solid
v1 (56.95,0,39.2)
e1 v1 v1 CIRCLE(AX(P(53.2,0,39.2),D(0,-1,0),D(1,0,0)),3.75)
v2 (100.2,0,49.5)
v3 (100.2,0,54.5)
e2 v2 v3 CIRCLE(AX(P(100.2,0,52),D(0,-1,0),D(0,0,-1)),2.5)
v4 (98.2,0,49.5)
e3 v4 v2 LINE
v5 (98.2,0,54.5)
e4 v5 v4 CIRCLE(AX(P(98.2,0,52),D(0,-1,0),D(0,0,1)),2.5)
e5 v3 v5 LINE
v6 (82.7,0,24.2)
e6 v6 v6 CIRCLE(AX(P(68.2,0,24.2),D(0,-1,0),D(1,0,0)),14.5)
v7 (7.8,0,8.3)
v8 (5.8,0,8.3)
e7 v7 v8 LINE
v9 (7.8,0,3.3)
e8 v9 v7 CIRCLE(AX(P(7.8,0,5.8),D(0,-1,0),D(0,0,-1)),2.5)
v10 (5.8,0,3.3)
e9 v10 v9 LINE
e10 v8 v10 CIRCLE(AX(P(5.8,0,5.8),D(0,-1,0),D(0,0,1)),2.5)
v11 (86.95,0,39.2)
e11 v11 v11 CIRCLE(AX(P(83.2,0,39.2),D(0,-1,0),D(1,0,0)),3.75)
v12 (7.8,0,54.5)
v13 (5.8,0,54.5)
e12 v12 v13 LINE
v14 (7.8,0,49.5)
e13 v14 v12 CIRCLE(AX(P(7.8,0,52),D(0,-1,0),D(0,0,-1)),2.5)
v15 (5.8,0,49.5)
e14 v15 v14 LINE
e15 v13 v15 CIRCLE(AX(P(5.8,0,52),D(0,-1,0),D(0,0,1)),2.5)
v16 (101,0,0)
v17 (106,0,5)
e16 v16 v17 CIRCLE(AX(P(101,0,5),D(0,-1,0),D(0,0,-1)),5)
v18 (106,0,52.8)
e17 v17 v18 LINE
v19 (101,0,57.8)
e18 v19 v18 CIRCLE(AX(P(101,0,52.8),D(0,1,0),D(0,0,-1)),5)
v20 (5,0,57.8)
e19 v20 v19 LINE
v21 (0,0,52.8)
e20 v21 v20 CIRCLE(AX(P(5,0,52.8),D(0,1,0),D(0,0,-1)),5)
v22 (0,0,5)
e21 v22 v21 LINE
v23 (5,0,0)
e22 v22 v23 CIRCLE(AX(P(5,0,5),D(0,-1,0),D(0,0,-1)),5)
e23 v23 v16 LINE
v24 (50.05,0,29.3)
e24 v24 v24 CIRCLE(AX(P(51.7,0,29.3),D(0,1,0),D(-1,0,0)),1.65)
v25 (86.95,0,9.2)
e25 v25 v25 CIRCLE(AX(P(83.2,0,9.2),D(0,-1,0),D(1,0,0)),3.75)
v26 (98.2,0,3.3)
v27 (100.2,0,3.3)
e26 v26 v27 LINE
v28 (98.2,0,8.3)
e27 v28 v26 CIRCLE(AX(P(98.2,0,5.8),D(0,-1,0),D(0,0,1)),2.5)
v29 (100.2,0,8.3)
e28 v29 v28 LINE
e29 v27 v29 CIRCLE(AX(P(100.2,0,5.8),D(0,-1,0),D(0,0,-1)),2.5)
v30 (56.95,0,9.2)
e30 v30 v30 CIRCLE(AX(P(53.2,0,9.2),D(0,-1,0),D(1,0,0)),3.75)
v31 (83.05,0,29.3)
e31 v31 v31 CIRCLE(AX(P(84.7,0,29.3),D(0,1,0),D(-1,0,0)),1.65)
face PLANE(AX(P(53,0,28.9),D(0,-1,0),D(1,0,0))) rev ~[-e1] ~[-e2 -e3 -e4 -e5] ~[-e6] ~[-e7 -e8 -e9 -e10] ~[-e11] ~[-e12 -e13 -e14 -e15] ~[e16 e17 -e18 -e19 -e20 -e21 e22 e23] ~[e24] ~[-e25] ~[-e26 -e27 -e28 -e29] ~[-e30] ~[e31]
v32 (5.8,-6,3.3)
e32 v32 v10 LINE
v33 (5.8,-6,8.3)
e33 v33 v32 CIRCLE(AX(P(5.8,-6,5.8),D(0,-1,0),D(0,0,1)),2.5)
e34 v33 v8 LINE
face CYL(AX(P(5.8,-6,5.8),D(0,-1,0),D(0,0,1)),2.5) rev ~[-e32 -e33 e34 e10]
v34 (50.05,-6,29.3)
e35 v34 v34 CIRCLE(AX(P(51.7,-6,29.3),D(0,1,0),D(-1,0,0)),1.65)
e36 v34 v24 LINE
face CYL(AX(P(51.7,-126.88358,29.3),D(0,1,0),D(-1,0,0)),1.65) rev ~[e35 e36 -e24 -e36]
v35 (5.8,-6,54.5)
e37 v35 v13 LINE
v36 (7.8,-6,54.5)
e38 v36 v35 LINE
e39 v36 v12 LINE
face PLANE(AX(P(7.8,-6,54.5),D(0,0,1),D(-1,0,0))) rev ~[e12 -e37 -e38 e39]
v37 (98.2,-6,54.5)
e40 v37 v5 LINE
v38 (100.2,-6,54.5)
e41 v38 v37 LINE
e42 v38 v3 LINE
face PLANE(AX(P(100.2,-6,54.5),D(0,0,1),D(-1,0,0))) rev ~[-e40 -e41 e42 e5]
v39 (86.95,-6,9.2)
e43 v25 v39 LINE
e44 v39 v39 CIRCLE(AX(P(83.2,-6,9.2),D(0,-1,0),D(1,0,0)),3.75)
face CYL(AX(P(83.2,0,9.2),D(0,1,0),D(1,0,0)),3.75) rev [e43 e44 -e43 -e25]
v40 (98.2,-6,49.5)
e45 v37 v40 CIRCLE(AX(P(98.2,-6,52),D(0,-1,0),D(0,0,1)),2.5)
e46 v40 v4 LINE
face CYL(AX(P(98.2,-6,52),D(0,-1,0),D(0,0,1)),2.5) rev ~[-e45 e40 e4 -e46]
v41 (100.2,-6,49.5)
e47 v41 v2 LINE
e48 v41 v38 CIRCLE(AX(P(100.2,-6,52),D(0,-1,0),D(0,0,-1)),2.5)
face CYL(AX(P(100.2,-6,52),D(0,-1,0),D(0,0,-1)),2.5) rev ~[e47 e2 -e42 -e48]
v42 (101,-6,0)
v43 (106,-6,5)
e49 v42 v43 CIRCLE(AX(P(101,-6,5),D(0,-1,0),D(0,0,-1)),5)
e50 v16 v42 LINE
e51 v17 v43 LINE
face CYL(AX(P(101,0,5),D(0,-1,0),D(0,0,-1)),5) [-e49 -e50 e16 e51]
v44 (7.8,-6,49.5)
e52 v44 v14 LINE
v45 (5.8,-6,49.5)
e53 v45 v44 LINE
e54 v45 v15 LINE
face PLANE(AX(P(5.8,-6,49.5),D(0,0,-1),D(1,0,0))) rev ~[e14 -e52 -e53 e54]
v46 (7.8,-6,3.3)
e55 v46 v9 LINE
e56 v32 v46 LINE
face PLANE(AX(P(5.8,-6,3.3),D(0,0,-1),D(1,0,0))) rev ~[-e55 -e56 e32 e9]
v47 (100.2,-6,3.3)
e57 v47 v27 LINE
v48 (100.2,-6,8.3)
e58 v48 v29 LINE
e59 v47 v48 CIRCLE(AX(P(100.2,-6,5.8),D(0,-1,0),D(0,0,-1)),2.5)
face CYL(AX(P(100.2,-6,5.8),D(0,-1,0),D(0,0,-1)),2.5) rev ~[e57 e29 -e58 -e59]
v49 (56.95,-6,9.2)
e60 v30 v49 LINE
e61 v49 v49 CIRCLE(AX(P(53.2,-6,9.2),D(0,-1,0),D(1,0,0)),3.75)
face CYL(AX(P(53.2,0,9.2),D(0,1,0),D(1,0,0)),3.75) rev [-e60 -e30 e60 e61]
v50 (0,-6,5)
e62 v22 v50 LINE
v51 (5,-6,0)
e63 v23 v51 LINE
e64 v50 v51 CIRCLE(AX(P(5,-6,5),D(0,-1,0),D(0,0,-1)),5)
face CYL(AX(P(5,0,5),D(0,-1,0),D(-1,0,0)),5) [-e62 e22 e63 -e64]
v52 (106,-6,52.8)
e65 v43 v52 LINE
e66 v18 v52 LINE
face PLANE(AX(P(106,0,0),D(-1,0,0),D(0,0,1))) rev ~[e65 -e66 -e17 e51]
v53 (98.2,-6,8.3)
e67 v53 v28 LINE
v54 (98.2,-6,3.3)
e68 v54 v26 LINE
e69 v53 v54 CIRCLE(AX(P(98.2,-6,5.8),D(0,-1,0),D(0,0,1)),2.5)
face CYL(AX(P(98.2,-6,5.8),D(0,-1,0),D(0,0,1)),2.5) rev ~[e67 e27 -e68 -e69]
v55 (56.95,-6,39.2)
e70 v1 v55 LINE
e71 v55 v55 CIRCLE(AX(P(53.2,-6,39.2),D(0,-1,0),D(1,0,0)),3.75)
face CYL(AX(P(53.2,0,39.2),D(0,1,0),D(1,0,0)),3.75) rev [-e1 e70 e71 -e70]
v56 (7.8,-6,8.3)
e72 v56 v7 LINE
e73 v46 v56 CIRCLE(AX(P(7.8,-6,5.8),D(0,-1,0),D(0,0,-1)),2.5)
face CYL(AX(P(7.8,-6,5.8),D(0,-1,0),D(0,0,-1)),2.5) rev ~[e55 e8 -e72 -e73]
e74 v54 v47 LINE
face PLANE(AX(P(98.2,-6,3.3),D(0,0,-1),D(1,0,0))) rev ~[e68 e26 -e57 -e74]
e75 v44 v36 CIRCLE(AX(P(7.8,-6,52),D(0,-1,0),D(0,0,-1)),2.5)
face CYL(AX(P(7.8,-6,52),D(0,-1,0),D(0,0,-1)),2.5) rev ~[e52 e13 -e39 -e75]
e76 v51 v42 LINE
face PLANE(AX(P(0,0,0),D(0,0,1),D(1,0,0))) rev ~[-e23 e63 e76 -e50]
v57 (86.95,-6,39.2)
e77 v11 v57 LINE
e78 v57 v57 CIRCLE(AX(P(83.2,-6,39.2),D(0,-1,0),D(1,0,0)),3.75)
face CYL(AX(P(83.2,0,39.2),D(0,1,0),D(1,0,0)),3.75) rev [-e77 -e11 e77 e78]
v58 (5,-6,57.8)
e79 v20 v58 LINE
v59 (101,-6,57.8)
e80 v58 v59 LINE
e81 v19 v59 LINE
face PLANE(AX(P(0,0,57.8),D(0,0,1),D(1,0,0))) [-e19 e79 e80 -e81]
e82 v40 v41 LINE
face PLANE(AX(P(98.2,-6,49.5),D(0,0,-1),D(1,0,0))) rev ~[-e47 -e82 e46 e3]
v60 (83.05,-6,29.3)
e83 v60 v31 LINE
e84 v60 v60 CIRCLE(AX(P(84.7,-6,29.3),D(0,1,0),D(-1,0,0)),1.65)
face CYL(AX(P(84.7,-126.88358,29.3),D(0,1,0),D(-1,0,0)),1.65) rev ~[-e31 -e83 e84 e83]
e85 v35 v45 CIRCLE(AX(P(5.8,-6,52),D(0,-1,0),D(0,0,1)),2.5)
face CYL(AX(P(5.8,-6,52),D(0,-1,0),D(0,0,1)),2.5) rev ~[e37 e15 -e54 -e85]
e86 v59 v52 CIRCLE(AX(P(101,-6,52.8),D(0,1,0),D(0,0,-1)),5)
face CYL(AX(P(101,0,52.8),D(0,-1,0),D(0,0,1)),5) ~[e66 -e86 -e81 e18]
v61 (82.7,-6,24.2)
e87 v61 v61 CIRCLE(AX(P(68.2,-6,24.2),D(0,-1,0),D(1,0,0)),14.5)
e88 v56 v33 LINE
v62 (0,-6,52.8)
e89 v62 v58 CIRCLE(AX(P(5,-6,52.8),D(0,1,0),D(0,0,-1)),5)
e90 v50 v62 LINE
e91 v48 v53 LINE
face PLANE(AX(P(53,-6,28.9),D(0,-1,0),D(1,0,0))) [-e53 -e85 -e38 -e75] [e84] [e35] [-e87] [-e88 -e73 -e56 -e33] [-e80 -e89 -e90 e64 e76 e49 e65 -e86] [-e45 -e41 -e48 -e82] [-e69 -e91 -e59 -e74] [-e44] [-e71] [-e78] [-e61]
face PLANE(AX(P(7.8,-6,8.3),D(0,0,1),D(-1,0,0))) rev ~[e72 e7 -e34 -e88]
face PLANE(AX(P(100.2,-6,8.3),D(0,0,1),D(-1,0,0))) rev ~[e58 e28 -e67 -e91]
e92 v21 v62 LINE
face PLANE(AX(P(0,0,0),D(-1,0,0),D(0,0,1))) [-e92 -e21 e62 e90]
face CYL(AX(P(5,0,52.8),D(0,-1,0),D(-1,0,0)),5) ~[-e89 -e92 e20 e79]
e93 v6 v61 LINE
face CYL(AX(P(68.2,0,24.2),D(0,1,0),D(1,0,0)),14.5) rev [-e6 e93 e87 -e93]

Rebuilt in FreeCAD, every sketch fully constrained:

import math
import FreeCAD as App
import Part
import Sketcher

V = App.Vector
Q = App.Units.Quantity


def edges_at(feature, points):
    """Names of the edges that pass closest to the given points."""
    edges = feature.Shape.Edges
    near = lambda p: min(range(len(edges)), key=lambda i: edges[i].distToShape(Part.Vertex(*p))[0])
    return sorted({f"Edge{near(p) + 1}" for p in points})

doc = App.newDocument("Part")
params = doc.addObject("Spreadsheet::Sheet", "Params")
for row, (alias, value) in enumerate([
    ("sketch1_diameter", "29 mm"),
    ("sketch1_diameter2", "7.5 mm"),
    ("sketch1_width", "106 mm"),
    ("sketch1_height", "57.8 mm"),
    ("pad1_length", "6 mm"),
    ("sketch2_radius", "2.5 mm"),
    ("sketch2_width", "2 mm"),
    ("sketch3_diameter", "3.3 mm"),
    ("hole_diameter", "3.3 mm"),
    ("fillet_radius", "5 mm"),
], start=1):
    params.set(f"A{row}", alias)
    params.set(f"B{row}", "=" + value)
    params.setAlias(f"B{row}", alias)

body = doc.addObject("PartDesign::Body", "Body")

# Sketch on XZ plane
sketch1 = body.newObject("Sketcher::SketchObject", "Sketch")
sketch1.AttachmentSupport = (doc.getObject("XZ_Plane"), [""])
sketch1.MapMode = "FlatFace"
sketch1.addGeometry([
    Part.LineSegment(V(0, 57.8, 0), V(0, 0, 0)),  # 0
    Part.LineSegment(V(0, 0, 0), V(106, 0, 0)),  # 1
    Part.LineSegment(V(106, 0, 0), V(106, 57.8, 0)),  # 2
    Part.LineSegment(V(106, 57.8, 0), V(0, 57.8, 0)),  # 3
    Part.Circle(V(53.2, 9.2, 0), V(0, 0, 1), 3.75),  # 4
    Part.Circle(V(83.2, 9.2, 0), V(0, 0, 1), 3.75),  # 5
    Part.Circle(V(53.2, 39.2, 0), V(0, 0, 1), 3.75),  # 6
    Part.Circle(V(68.2, 24.2, 0), V(0, 0, 1), 14.5),  # 7
    Part.Circle(V(83.2, 39.2, 0), V(0, 0, 1), 3.75),  # 8
], False)
sketch1.addConstraint([
    Sketcher.Constraint("Coincident", 0, 2, 1, 1),
    Sketcher.Constraint("Coincident", 1, 2, 2, 1),
    Sketcher.Constraint("Coincident", 2, 2, 3, 1),
    Sketcher.Constraint("Coincident", 3, 2, 0, 1),
    Sketcher.Constraint("Vertical", 0),
    Sketcher.Constraint("Horizontal", 1),
    Sketcher.Constraint("Vertical", 2),
    Sketcher.Constraint("Horizontal", 3),
    Sketcher.Constraint("Coincident", 0, 2, -1, 1),
    Sketcher.Constraint("Equal", 4, 5),
    Sketcher.Constraint("Equal", 5, 6),
    Sketcher.Constraint("Equal", 6, 8),
    Sketcher.Constraint("Horizontal", 4, 3, 5, 3),
    Sketcher.Constraint("Horizontal", 6, 3, 8, 3),
    Sketcher.Constraint("Vertical", 4, 3, 6, 3),
    Sketcher.Constraint("Vertical", 5, 3, 8, 3),
    Sketcher.Constraint("Diameter", 7, Q("29 mm")),
    Sketcher.Constraint("Diameter", 4, Q("7.5 mm")),
    Sketcher.Constraint("DistanceX", 1, 1, 1, 2, Q("106 mm")),
    Sketcher.Constraint("DistanceY", 0, 2, 0, 1, Q("57.8 mm")),
    Sketcher.Constraint("DistanceX", 4, 3, 5, 3, Q("30 mm")),
    Sketcher.Constraint("DistanceY", 4, 3, 6, 3, Q("30 mm")),
    Sketcher.Constraint("DistanceX", 4, 3, 7, 3, Q("15 mm")),
    Sketcher.Constraint("DistanceY", 4, 3, 7, 3, Q("15 mm")),
    Sketcher.Constraint("DistanceX", -1, 1, 4, 3, Q("53.2 mm")),
    Sketcher.Constraint("DistanceY", -1, 1, 4, 3, Q("9.2 mm")),
])
sketch1.setExpression("Constraints[16]", "Params.sketch1_diameter")
sketch1.setExpression("Constraints[17]", "Params.sketch1_diameter2")
sketch1.setExpression("Constraints[18]", "Params.sketch1_width")
sketch1.setExpression("Constraints[19]", "Params.sketch1_height")
pad1 = body.newObject("PartDesign::Pad", "Pad")
pad1.Profile = sketch1
pad1.setExpression("Length", "Params.pad1_length")

# Sketch on XZ plane
sketch2 = body.newObject("Sketcher::SketchObject", "Sketch001")
sketch2.AttachmentSupport = (doc.getObject("XZ_Plane"), [""])
sketch2.MapMode = "FlatFace"
sketch2.AttachmentOffset = App.Placement(V(0, 0, 6), App.Rotation())
sketch2.addGeometry([
    Part.LineSegment(V(7.8, 54.5, 0), V(5.8, 54.5, 0)),  # 0
    Part.ArcOfCircle(Part.Circle(V(5.8, 52, 0), V(0, 0, 1), 2.5), math.radians(90), math.radians(270)),  # 1
    Part.LineSegment(V(5.8, 49.5, 0), V(7.8, 49.5, 0)),  # 2
    Part.ArcOfCircle(Part.Circle(V(7.8, 52, 0), V(0, 0, 1), 2.5), math.radians(-90), math.radians(90)),  # 3
    Part.LineSegment(V(7.8, 8.3, 0), V(5.8, 8.3, 0)),  # 4
    Part.ArcOfCircle(Part.Circle(V(5.8, 5.8, 0), V(0, 0, 1), 2.5), math.radians(90), math.radians(270)),  # 5
    Part.LineSegment(V(5.8, 3.3, 0), V(7.8, 3.3, 0)),  # 6
    Part.ArcOfCircle(Part.Circle(V(7.8, 5.8, 0), V(0, 0, 1), 2.5), math.radians(-90), math.radians(90)),  # 7
    Part.LineSegment(V(100.2, 8.3, 0), V(98.2, 8.3, 0)),  # 8
    Part.ArcOfCircle(Part.Circle(V(98.2, 5.8, 0), V(0, 0, 1), 2.5), math.radians(90), math.radians(270)),  # 9
    Part.LineSegment(V(98.2, 3.3, 0), V(100.2, 3.3, 0)),  # 10
    Part.ArcOfCircle(Part.Circle(V(100.2, 5.8, 0), V(0, 0, 1), 2.5), math.radians(-90), math.radians(90)),  # 11
    Part.LineSegment(V(100.2, 54.5, 0), V(98.2, 54.5, 0)),  # 12
    Part.ArcOfCircle(Part.Circle(V(98.2, 52, 0), V(0, 0, 1), 2.5), math.radians(90), math.radians(270)),  # 13
    Part.LineSegment(V(98.2, 49.5, 0), V(100.2, 49.5, 0)),  # 14
    Part.ArcOfCircle(Part.Circle(V(100.2, 52, 0), V(0, 0, 1), 2.5), math.radians(-90), math.radians(90)),  # 15
], False)
sketch2.addConstraint([
    Sketcher.Constraint("Tangent", 0, 2, 1, 1),
    Sketcher.Constraint("Tangent", 1, 2, 2, 1),
    Sketcher.Constraint("Tangent", 2, 2, 3, 1),
    Sketcher.Constraint("Tangent", 3, 2, 0, 1),
    Sketcher.Constraint("Tangent", 4, 2, 5, 1),
    Sketcher.Constraint("Tangent", 5, 2, 6, 1),
    Sketcher.Constraint("Tangent", 6, 2, 7, 1),
    Sketcher.Constraint("Tangent", 7, 2, 4, 1),
    Sketcher.Constraint("Tangent", 8, 2, 9, 1),
    Sketcher.Constraint("Tangent", 9, 2, 10, 1),
    Sketcher.Constraint("Tangent", 10, 2, 11, 1),
    Sketcher.Constraint("Tangent", 11, 2, 8, 1),
    Sketcher.Constraint("Tangent", 12, 2, 13, 1),
    Sketcher.Constraint("Tangent", 13, 2, 14, 1),
    Sketcher.Constraint("Tangent", 14, 2, 15, 1),
    Sketcher.Constraint("Tangent", 15, 2, 12, 1),
    Sketcher.Constraint("Horizontal", 0),
    Sketcher.Constraint("Horizontal", 2),
    Sketcher.Constraint("Horizontal", 4),
    Sketcher.Constraint("Horizontal", 6),
    Sketcher.Constraint("Horizontal", 8),
    Sketcher.Constraint("Horizontal", 10),
    Sketcher.Constraint("Horizontal", 12),
    Sketcher.Constraint("Horizontal", 14),
    Sketcher.Constraint("Equal", 3, 5),
    Sketcher.Constraint("Equal", 7, 9),
    Sketcher.Constraint("Equal", 11, 13),
    Sketcher.Constraint("Horizontal", 7, 3, 9, 3),
    Sketcher.Constraint("Horizontal", 3, 3, 13, 3),
    Sketcher.Constraint("Vertical", 1, 3, 5, 3),
    Sketcher.Constraint("Vertical", 3, 3, 7, 3),
    Sketcher.Constraint("Vertical", 9, 3, 13, 3),
    Sketcher.Constraint("Vertical", 11, 3, 15, 3),
    Sketcher.Constraint("Equal", 6, 8),
    Sketcher.Constraint("Radius", 1, Q("2.5 mm")),
    Sketcher.Constraint("DistanceX", 0, 2, 0, 1, Q("2 mm")),
    Sketcher.Constraint("DistanceY", -1, 1, 1, 3, Q("52 mm")),
    Sketcher.Constraint("DistanceX", -1, 1, 1, 3, Q("5.8 mm")),
    Sketcher.Constraint("DistanceY", -1, 1, 5, 3, Q("5.8 mm")),
    Sketcher.Constraint("DistanceX", -1, 1, 9, 3, Q("98.2 mm")),
])
sketch2.setExpression("Constraints[34]", "Params.sketch2_radius")
sketch2.setExpression("Constraints[35]", "Params.sketch2_width")
pocket1 = body.newObject("PartDesign::Pocket", "Pocket")
pocket1.Profile = sketch2
pocket1.Type = "ThroughAll"

# Sketch on XZ plane
sketch3 = body.newObject("Sketcher::SketchObject", "Sketch002")
sketch3.AttachmentSupport = (doc.getObject("XZ_Plane"), [""])
sketch3.MapMode = "FlatFace"
sketch3.AttachmentOffset = App.Placement(V(0, 0, 6), App.Rotation())
sketch3.addGeometry([
    Part.Circle(V(51.7, 29.3, 0), V(0, 0, 1), 1.65),
    Part.Circle(V(84.7, 29.3, 0), V(0, 0, 1), 1.65),
], False)
sketch3.addConstraint([
    Sketcher.Constraint("Equal", 0, 1),
    Sketcher.Constraint("Horizontal", 0, 3, 1, 3),
    Sketcher.Constraint("Diameter", 0, Q("3.3 mm")),
    Sketcher.Constraint("DistanceX", 0, 3, 1, 3, Q("33 mm")),
    Sketcher.Constraint("DistanceX", -1, 1, 0, 3, Q("51.7 mm")),
    Sketcher.Constraint("DistanceY", -1, 1, 0, 3, Q("29.3 mm")),
])
sketch3.setExpression("Constraints[2]", "Params.sketch3_diameter")
doc.recompute()
hole = body.newObject("PartDesign::Hole", "Hole")
hole.Profile = sketch3
hole.ThreadType = "None"
hole.setExpression("Diameter", "Params.hole_diameter")
hole.DepthType = "ThroughAll"
doc.recompute()

fillet = body.newObject("PartDesign::Fillet", "Fillet")
fillet.Base = (hole, edges_at(hole, [
    (106, -3, 57.8),
    (106, -3, 0),
    (0, -3, 0),
    (0, -3, 57.8),
]))
fillet.setExpression("Radius", "Params.fillet_radius")

doc.recompute()
